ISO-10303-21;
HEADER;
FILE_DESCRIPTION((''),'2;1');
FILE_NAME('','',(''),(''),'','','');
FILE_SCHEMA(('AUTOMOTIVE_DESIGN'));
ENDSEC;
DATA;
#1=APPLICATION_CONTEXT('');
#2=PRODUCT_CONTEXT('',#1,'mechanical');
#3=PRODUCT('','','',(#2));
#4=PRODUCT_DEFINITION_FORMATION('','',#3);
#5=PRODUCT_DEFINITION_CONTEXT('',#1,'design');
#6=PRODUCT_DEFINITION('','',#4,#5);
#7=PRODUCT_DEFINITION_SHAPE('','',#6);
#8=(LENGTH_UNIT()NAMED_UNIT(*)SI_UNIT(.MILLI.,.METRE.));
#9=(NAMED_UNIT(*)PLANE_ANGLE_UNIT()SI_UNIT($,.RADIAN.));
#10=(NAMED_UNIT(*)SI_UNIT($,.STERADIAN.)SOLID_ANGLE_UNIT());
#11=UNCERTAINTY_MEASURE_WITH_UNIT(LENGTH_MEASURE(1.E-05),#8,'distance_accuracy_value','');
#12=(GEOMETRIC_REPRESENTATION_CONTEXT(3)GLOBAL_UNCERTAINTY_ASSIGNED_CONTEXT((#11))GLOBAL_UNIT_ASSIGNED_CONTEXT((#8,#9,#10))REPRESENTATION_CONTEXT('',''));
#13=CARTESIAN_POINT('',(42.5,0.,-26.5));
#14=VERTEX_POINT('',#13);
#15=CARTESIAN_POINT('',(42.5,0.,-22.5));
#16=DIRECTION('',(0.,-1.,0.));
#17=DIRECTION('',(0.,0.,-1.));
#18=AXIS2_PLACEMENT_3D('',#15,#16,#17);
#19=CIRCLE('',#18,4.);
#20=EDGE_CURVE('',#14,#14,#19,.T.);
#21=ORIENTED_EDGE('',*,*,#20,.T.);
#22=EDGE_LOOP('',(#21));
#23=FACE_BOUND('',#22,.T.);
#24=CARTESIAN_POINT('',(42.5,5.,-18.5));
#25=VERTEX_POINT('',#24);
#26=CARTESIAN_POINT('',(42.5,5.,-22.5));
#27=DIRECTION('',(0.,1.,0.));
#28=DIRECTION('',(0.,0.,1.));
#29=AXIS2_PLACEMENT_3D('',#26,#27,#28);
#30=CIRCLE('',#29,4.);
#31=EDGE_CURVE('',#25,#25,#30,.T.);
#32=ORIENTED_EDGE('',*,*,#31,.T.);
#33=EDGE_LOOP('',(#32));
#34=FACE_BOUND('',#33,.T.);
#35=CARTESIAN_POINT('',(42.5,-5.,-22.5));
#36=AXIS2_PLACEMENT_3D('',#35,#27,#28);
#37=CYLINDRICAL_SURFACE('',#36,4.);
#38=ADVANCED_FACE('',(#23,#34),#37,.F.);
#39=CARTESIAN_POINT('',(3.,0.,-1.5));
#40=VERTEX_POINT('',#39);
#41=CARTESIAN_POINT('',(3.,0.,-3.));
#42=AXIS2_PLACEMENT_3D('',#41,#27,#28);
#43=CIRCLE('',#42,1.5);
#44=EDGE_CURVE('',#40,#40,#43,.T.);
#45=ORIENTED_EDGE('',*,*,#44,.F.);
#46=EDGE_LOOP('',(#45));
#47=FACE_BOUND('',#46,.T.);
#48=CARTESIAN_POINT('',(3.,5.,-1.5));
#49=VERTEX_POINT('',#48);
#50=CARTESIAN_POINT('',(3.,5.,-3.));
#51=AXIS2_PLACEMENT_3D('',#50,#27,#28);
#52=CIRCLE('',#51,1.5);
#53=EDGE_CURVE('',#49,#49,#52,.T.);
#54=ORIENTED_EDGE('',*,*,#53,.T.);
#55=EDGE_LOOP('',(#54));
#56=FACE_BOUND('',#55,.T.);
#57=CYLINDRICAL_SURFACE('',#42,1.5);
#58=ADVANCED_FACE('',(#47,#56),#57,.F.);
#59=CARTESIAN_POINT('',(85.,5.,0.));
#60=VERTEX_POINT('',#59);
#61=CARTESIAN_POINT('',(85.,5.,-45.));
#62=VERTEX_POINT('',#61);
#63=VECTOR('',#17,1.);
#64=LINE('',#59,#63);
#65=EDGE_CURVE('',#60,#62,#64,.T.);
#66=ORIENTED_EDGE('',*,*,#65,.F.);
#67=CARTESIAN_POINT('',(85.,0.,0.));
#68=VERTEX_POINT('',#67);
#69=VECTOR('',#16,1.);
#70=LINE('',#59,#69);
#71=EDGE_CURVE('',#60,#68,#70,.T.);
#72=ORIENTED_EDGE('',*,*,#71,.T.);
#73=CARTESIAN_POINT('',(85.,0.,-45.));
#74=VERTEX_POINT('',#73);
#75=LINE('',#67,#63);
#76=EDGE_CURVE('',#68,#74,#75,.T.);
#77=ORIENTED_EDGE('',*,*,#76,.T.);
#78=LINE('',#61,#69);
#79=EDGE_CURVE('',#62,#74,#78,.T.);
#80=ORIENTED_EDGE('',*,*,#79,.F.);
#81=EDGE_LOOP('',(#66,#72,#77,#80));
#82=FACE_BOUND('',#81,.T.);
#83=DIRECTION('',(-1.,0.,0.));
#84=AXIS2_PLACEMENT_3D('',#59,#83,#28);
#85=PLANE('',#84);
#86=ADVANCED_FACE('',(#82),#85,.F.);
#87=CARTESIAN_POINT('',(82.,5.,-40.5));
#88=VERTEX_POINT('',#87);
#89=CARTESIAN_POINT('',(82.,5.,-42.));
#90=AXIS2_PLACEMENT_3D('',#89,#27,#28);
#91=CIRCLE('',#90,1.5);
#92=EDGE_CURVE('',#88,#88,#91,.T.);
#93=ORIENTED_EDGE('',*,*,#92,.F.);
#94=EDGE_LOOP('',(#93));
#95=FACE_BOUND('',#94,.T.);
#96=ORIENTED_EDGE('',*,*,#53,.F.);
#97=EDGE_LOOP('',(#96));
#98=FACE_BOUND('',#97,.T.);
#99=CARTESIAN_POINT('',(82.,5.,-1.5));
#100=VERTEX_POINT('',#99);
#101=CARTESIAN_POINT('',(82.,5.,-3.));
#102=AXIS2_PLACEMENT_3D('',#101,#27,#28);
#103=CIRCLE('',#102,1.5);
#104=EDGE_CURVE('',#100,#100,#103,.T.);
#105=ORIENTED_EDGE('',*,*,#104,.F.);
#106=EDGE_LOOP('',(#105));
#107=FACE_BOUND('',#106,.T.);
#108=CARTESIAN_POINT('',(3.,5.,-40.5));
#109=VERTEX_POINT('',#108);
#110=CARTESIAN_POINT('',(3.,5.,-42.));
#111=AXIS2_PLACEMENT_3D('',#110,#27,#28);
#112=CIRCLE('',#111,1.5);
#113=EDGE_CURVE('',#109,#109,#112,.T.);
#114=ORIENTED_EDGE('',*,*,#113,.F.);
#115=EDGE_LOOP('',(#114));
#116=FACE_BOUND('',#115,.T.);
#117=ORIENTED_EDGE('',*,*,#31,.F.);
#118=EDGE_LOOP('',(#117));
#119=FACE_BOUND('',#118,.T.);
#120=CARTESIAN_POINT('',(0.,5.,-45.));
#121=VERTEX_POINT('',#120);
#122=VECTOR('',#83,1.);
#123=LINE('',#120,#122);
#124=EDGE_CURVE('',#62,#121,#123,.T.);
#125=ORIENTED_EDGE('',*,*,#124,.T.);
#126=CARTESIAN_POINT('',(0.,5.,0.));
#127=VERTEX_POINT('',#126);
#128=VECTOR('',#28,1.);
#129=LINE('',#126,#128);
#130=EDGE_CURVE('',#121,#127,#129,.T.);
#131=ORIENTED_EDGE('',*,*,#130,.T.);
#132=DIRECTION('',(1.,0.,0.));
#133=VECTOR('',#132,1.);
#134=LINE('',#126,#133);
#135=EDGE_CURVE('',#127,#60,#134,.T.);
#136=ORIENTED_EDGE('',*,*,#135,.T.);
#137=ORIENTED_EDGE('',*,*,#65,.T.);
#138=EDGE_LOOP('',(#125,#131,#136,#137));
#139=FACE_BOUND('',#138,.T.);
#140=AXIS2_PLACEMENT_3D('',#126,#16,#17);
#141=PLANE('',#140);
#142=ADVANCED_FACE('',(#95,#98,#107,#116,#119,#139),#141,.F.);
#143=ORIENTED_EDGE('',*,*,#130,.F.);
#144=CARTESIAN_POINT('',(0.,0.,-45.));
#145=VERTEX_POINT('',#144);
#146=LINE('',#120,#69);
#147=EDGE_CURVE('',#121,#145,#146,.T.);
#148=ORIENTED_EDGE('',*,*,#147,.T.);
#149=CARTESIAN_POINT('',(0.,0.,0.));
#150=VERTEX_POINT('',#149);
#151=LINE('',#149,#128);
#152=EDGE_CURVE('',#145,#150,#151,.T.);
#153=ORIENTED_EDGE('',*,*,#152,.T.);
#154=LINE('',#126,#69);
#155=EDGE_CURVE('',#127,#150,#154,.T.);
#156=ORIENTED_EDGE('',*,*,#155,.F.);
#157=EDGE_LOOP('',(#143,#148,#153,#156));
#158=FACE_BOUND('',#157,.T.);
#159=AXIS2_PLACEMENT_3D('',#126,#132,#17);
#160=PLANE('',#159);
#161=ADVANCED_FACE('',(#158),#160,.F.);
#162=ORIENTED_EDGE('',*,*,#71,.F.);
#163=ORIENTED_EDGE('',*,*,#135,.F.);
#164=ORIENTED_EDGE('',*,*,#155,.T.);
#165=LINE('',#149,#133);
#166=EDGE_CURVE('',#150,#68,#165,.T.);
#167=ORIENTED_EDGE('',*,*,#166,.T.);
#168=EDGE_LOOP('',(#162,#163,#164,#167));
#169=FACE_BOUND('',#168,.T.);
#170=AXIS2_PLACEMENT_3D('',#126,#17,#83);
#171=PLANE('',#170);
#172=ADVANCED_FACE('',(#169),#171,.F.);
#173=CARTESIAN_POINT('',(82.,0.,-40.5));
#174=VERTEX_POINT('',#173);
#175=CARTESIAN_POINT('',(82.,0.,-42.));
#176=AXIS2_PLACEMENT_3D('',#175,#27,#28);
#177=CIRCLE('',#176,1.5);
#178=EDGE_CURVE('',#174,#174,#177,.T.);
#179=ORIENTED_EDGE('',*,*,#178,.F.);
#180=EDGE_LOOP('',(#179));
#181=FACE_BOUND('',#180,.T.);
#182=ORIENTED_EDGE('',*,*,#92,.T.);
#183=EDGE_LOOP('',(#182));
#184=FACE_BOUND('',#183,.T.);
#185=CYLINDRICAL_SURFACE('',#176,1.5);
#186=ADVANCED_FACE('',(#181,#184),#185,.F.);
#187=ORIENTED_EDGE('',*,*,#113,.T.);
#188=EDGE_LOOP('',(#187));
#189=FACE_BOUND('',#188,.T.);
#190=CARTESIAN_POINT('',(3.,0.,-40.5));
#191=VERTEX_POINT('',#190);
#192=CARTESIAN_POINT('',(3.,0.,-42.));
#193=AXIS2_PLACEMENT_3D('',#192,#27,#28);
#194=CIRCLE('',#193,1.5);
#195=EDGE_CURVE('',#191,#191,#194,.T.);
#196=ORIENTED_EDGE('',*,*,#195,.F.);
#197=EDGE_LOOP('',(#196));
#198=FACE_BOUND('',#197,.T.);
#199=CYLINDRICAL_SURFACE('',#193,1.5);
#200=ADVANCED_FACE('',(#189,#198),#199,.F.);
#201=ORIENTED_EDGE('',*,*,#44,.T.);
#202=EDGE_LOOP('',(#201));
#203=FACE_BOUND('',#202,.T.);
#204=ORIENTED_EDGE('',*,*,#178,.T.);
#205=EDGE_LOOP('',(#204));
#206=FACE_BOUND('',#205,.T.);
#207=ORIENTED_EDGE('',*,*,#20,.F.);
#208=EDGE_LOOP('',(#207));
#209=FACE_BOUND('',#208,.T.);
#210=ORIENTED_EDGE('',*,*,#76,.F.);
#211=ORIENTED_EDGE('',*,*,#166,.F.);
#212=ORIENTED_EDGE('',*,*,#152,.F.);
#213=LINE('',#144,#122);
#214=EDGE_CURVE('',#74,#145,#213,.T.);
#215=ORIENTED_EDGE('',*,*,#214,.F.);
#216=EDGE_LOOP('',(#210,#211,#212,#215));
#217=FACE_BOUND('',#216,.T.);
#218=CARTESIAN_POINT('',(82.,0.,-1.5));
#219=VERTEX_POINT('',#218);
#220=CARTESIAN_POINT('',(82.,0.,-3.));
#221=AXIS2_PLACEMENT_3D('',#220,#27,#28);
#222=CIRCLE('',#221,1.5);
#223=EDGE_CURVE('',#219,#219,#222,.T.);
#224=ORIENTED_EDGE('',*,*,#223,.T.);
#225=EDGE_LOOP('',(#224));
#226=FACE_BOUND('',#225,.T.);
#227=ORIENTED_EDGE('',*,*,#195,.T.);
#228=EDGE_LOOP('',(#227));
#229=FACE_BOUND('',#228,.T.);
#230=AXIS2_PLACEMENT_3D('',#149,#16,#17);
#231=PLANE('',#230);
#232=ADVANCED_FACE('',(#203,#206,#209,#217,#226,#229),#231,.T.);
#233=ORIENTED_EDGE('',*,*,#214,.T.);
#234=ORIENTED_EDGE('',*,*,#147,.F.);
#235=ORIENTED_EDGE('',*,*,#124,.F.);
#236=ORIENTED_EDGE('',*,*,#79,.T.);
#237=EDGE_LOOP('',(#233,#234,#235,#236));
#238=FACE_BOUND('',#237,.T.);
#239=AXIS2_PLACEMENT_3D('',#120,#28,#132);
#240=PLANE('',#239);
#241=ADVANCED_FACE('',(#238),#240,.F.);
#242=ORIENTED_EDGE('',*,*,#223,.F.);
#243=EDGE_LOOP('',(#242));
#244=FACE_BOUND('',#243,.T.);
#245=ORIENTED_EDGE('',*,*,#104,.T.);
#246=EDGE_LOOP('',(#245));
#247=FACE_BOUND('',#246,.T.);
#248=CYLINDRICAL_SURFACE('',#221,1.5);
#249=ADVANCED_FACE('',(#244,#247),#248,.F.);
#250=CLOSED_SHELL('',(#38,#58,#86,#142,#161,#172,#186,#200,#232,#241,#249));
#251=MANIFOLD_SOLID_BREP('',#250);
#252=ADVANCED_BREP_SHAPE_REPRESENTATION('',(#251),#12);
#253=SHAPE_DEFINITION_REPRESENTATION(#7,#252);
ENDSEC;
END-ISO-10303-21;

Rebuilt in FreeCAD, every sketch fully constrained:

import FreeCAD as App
import Part
import Sketcher

V = App.Vector
Q = App.Units.Quantity

doc = App.newDocument("Part")
body = doc.addObject("PartDesign::Body", "Body")

sketch1 = doc.addObject("Sketcher::SketchObject", "Sketch")
body.addObject(sketch1)
sketch1.AttachmentSupport = (doc.XZ_Plane, [""])
sketch1.MapMode = "FlatFace"
sketch1.addGeometry([
    Part.LineSegment(V(0, -45, 0), V(0, 0, 0)),
    Part.LineSegment(V(0, 0, 0), V(85, 0, 0)),
    Part.LineSegment(V(85, 0, 0), V(85, -45, 0)),
    Part.LineSegment(V(85, -45, 0), V(0, -45, 0)),
], False)
sketch1.addConstraint([
    Sketcher.Constraint("Coincident", 0, 2, 1, 1),
    Sketcher.Constraint("Coincident", 1, 2, 2, 1),
    Sketcher.Constraint("Coincident", 2, 2, 3, 1),
    Sketcher.Constraint("Coincident", 3, 2, 0, 1),
    Sketcher.Constraint("Vertical", 0),
    Sketcher.Constraint("Horizontal", 1),
    Sketcher.Constraint("Vertical", 2),
    Sketcher.Constraint("Horizontal", 3),
    Sketcher.Constraint("Coincident", 0, 2, -1, 1),
    Sketcher.Constraint("DistanceX", 1, 1, 1, 2, Q("85 mm")),
    Sketcher.Constraint("DistanceY", 0, 1, 0, 2, Q("45 mm")),
])
pad1 = doc.addObject("PartDesign::Pad", "Pad")
body.addObject(pad1)
pad1.Profile = sketch1
pad1.Length = 5
pad1.Reversed = True

sketch2 = doc.addObject("Sketcher::SketchObject", "Sketch001")
body.addObject(sketch2)
sketch2.AttachmentSupport = (doc.XZ_Plane, [""])
sketch2.MapMode = "FlatFace"
sketch2.AttachmentOffset = App.Placement(V(0, 0, -5), App.Rotation())
sketch2.addGeometry([
    Part.Circle(V(3, -42, 0), V(0, 0, 1), 1.5),
    Part.Circle(V(3, -3, 0), V(0, 0, 1), 1.5),
    Part.Circle(V(82, -3, 0), V(0, 0, 1), 1.5),
    Part.Circle(V(82, -42, 0), V(0, 0, 1), 1.5),
], False)
sketch2.addConstraint([
    Sketcher.Constraint("Equal", 0, 1),
    Sketcher.Constraint("Equal", 1, 2),
    Sketcher.Constraint("Equal", 2, 3),
    Sketcher.Constraint("Horizontal", 1, 3, 2, 3),
    Sketcher.Constraint("Horizontal", 0, 3, 3, 3),
    Sketcher.Constraint("Vertical", 0, 3, 1, 3),
    Sketcher.Constraint("Vertical", 2, 3, 3, 3),
    Sketcher.Constraint("Diameter", 0, Q("3 mm")),
    Sketcher.Constraint("DistanceX", -1, 1, 0, 3, Q("3 mm")),
    Sketcher.Constraint("DistanceY", 0, 3, -1, 1, Q("42 mm")),
    Sketcher.Constraint("DistanceY", 1, 3, -1, 1, Q("3 mm")),
    Sketcher.Constraint("DistanceX", -1, 1, 2, 3, Q("82 mm")),
])
pocket1 = doc.addObject("PartDesign::Pocket", "Pocket")
body.addObject(pocket1)
pocket1.Profile = sketch2
pocket1.Length = 5
pocket1.Reversed = True

sketch3 = doc.addObject("Sketcher::SketchObject", "Sketch002")
body.addObject(sketch3)
sketch3.AttachmentSupport = (doc.XZ_Plane, [""])
sketch3.MapMode = "FlatFace"
sketch3.AttachmentOffset = App.Placement(V(0, 0, -5), App.Rotation())
sketch3.addGeometry(Part.Circle(V(42.5, -22.5, 0), V(0, 0, 1), 4), False)
sketch3.addConstraint([
    Sketcher.Constraint("Diameter", 0, Q("8 mm")),
    Sketcher.Constraint("DistanceX", -1, 1, 0, 3, Q("42.5 mm")),
    Sketcher.Constraint("DistanceY", 0, 3, -1, 1, Q("22.5 mm")),
])
pocket2 = doc.addObject("PartDesign::Pocket", "Pocket001")
body.addObject(pocket2)
pocket2.Profile = sketch3
pocket2.Length = 10
pocket2.Reversed = True

doc.recompute()
